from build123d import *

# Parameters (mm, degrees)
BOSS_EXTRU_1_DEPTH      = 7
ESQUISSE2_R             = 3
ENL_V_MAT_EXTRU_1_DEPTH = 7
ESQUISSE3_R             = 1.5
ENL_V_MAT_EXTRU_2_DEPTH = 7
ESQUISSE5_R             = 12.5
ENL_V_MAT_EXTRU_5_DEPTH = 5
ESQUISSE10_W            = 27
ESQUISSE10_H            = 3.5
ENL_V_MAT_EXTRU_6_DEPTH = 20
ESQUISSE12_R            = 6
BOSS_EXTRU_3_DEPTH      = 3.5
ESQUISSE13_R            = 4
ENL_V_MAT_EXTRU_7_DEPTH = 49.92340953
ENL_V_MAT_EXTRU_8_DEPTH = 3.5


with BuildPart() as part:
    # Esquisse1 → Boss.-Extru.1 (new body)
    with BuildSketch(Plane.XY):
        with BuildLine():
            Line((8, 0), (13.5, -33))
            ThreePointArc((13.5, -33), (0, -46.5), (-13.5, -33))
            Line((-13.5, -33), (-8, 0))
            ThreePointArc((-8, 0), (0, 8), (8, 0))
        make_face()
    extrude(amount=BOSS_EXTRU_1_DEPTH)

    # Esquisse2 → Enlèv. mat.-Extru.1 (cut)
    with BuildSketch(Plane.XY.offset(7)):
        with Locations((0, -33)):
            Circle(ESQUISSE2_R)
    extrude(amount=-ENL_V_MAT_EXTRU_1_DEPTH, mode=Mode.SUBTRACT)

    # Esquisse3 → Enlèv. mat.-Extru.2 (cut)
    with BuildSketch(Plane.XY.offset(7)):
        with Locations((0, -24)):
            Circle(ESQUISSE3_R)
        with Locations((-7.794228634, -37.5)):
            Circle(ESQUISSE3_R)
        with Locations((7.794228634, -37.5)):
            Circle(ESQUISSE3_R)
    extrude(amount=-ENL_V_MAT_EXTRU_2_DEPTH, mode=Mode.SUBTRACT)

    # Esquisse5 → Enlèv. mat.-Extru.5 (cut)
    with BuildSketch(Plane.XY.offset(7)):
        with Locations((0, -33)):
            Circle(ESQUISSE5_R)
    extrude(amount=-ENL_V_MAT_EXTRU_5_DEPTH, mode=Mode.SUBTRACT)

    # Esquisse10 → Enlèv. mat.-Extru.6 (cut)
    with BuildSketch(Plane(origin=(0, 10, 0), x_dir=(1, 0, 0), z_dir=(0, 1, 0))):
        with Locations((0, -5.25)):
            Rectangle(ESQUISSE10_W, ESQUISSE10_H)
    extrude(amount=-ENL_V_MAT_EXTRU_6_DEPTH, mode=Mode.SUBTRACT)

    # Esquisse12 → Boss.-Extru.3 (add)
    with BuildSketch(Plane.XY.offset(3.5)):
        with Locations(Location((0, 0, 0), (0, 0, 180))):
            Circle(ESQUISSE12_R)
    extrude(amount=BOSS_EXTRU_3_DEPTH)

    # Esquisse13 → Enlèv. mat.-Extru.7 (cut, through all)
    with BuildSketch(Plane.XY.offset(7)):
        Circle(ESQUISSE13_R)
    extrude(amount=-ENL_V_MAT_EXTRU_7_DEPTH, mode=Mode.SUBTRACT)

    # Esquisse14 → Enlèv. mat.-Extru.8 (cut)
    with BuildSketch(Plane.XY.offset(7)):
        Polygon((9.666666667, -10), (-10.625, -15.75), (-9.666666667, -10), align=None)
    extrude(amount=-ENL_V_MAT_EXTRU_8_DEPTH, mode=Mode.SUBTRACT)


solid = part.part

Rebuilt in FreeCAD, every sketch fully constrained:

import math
import FreeCAD as App
import Part
import Sketcher
from FreeCAD import Vector
Q = App.Units.Quantity

doc = App.newDocument("Part")
params = doc.addObject("Spreadsheet::Sheet", "Params")
for row, (alias, value) in enumerate([
    ("sketch1_radius", "8 mm"),
    ("sketch1_radius2", "13.5 mm"),
    ("pad1_length", "7 mm"),
    ("sketch2_diameter", "6 mm"),
    ("pocket1_length", "7 mm"),
    ("sketch3_diameter", "3 mm"),
    ("pocket2_length", "7 mm"),
    ("sketch4_diameter", "25 mm"),
    ("pocket3_length", "5 mm"),
    ("sketch5_width", "27 mm"),
    ("sketch5_height", "3.5 mm"),
    ("pocket4_length", "20 mm"),
    ("sketch6_diameter", "12 mm"),
    ("pad2_length", "3.5 mm"),
    ("sketch7_diameter", "8 mm"),
    ("pocket6_length", "3.5 mm"),
], start=1):
    params.set(f"A{row}", alias)
    params.set(f"B{row}", "=" + value)
    params.setAlias(f"B{row}", alias)

body = doc.addObject("PartDesign::Body", "Body")

# Sketch on XY plane
sketch1 = body.newObject("Sketcher::SketchObject", "Sketch")
sketch1.AttachmentSupport = (doc.getObject("XY_Plane"), [""])
sketch1.MapMode = "FlatFace"
sketch1.addGeometry(Part.LineSegment(Vector(14, -33, 0), Vector(8, 0, 0)), False)
sketch1.addGeometry(Part.ArcOfCircle(Part.Circle(Vector(0, 0, 0), Vector(0, 0, 1), 8), math.radians(0), math.radians(180)), False)
sketch1.addGeometry(Part.LineSegment(Vector(-8, 0, 0), Vector(-14, -33, 0)), False)
sketch1.addGeometry(Part.ArcOfCircle(Part.Circle(Vector(0, -33, 0), Vector(0, 0, 1), 14), math.radians(180), math.radians(360)), False)
sketch1.addConstraint(Sketcher.Constraint("Coincident", 0, 2, 1, 1))
sketch1.addConstraint(Sketcher.Constraint("Coincident", 1, 2, 2, 1))
sketch1.addConstraint(Sketcher.Constraint("Coincident", 2, 2, 3, 1))
sketch1.addConstraint(Sketcher.Constraint("Coincident", 3, 2, 0, 1))
sketch1.addConstraint(Sketcher.Constraint("Coincident", 1, 3, -1, 1))
sketch1.addConstraint(Sketcher.Constraint("Symmetric", 2, 2, 3, 2, -2))
sketch1.addConstraint(Sketcher.Constraint("PointOnObject", 0, 2, -1))
sketch1.addConstraint(Sketcher.Constraint("PointOnObject", 1, 2, -1))
sketch1.addConstraint(Sketcher.Constraint("Horizontal", 3, 3, 2, 2))
sketch1.addConstraint(Sketcher.Constraint("Radius", 1, Q("8 mm")))
sketch1.addConstraint(Sketcher.Constraint("Radius", 3, Q("13.5 mm")))
sketch1.addConstraint(Sketcher.Constraint("DistanceY", 3, 3, -1, 1, Q("33 mm")))
sketch1.setExpression("Constraints[9]", "Params.sketch1_radius")
sketch1.setExpression("Constraints[10]", "Params.sketch1_radius2")
pad1 = body.newObject("PartDesign::Pad", "Pad")
pad1.Profile = sketch1
pad1.setExpression("Length", "Params.pad1_length")

# Sketch on XY plane
sketch2 = body.newObject("Sketcher::SketchObject", "Sketch001")
sketch2.AttachmentSupport = (doc.getObject("XY_Plane"), [""])
sketch2.MapMode = "FlatFace"
sketch2.AttachmentOffset = App.Placement(Vector(0, 0, 7), App.Rotation())
sketch2.addGeometry(Part.Circle(Vector(0, -33, 0), Vector(0, 0, 1), 3), False)
sketch2.addConstraint(Sketcher.Constraint("PointOnObject", 0, 3, -2))
sketch2.addConstraint(Sketcher.Constraint("Diameter", 0, Q("6 mm")))
sketch2.addConstraint(Sketcher.Constraint("DistanceY", 0, 3, -1, 1, Q("33 mm")))
sketch2.setExpression("Constraints[1]", "Params.sketch2_diameter")
pocket1 = body.newObject("PartDesign::Pocket", "Pocket")
pocket1.Profile = sketch2
pocket1.setExpression("Length", "Params.pocket1_length")

# Sketch on XY plane
sketch3 = body.newObject("Sketcher::SketchObject", "Sketch002")
sketch3.AttachmentSupport = (doc.getObject("XY_Plane"), [""])
sketch3.MapMode = "FlatFace"
sketch3.AttachmentOffset = App.Placement(Vector(0, 0, 7), App.Rotation())
sketch3.addGeometry(Part.Circle(Vector(0, -24, 0), Vector(0, 0, 1), 1.5), False)
sketch3.addGeometry(Part.Circle(Vector(-7.8, -37.5, 0), Vector(0, 0, 1), 1.5), False)
sketch3.addGeometry(Part.Circle(Vector(7.8, -37.5, 0), Vector(0, 0, 1), 1.5), False)
sketch3.addConstraint(Sketcher.Constraint("Equal", 0, 1))
sketch3.addConstraint(Sketcher.Constraint("Equal", 1, 2))
sketch3.addConstraint(Sketcher.Constraint("Symmetric", 1, 3, 2, 3, -2))
sketch3.addConstraint(Sketcher.Constraint("PointOnObject", 0, 3, -2))
sketch3.addConstraint(Sketcher.Constraint("Diameter", 0, Q("3 mm")))
sketch3.addConstraint(Sketcher.Constraint("DistanceY", 0, 3, -1, 1, Q("24 mm")))
sketch3.addConstraint(Sketcher.Constraint("DistanceY", 1, 3, -1, 1, Q("37.5 mm")))
sketch3.addConstraint(Sketcher.Constraint("DistanceX", 1, 3, -1, 1, Q("7.794229 mm")))
sketch3.setExpression("Constraints[4]", "Params.sketch3_diameter")
pocket2 = body.newObject("PartDesign::Pocket", "Pocket001")
pocket2.Profile = sketch3
pocket2.setExpression("Length", "Params.pocket2_length")

# Sketch on XY plane
sketch4 = body.newObject("Sketcher::SketchObject", "Sketch003")
sketch4.AttachmentSupport = (doc.getObject("XY_Plane"), [""])
sketch4.MapMode = "FlatFace"
sketch4.AttachmentOffset = App.Placement(Vector(0, 0, 7), App.Rotation())
sketch4.addGeometry(Part.Circle(Vector(0, -33, 0), Vector(0, 0, 1), 12), False)
sketch4.addConstraint(Sketcher.Constraint("PointOnObject", 0, 3, -2))
sketch4.addConstraint(Sketcher.Constraint("Diameter", 0, Q("25 mm")))
sketch4.addConstraint(Sketcher.Constraint("DistanceY", 0, 3, -1, 1, Q("33 mm")))
sketch4.setExpression("Constraints[1]", "Params.sketch4_diameter")
pocket3 = body.newObject("PartDesign::Pocket", "Pocket002")
pocket3.Profile = sketch4
pocket3.setExpression("Length", "Params.pocket3_length")

# Sketch on XZ plane
sketch5 = body.newObject("Sketcher::SketchObject", "Sketch004")
sketch5.AttachmentSupport = (doc.getObject("XZ_Plane"), [""])
sketch5.MapMode = "FlatFace"
sketch5.AttachmentOffset = App.Placement(Vector(0, 0, -10), App.Rotation())
sketch5.addGeometry(Part.LineSegment(Vector(-13.5, 3.5, 0), Vector(-13.5, 7, 0)), False)
sketch5.addGeometry(Part.LineSegment(Vector(-13.5, 7, 0), Vector(13.5, 7, 0)), False)
sketch5.addGeometry(Part.LineSegment(Vector(13.5, 7, 0), Vector(13.5, 3.5, 0)), False)
sketch5.addGeometry(Part.LineSegment(Vector(13.5, 3.5, 0), Vector(-13.5, 3.5, 0)), False)
sketch5.addConstraint(Sketcher.Constraint("Coincident", 0, 2, 1, 1))
sketch5.addConstraint(Sketcher.Constraint("Coincident", 1, 2, 2, 1))
sketch5.addConstraint(Sketcher.Constraint("Coincident", 2, 2, 3, 1))
sketch5.addConstraint(Sketcher.Constraint("Coincident", 3, 2, 0, 1))
sketch5.addConstraint(Sketcher.Constraint("Vertical", 0))
sketch5.addConstraint(Sketcher.Constraint("Horizontal", 1))
sketch5.addConstraint(Sketcher.Constraint("Vertical", 2))
sketch5.addConstraint(Sketcher.Constraint("Horizontal", 3))
sketch5.addConstraint(Sketcher.Constraint("DistanceX", 1, 1, 1, 2, Q("27 mm")))
sketch5.addConstraint(Sketcher.Constraint("DistanceY", 0, 1, 0, 2, Q("3.5 mm")))
sketch5.addConstraint(Sketcher.Constraint("DistanceY", -1, 1, 0, 2, Q("7 mm")))
sketch5.addConstraint(Sketcher.Constraint("DistanceX", 0, 2, -1, 1, Q("13.5 mm")))
sketch5.setExpression("Constraints[8]", "Params.sketch5_width")
sketch5.setExpression("Constraints[9]", "Params.sketch5_height")
pocket4 = body.newObject("PartDesign::Pocket", "Pocket003")
pocket4.Profile = sketch5
pocket4.setExpression("Length", "Params.pocket4_length")
pocket4.Reversed = True

# Sketch on XY plane
sketch6 = body.newObject("Sketcher::SketchObject", "Sketch005")
sketch6.AttachmentSupport = (doc.getObject("XY_Plane"), [""])
sketch6.MapMode = "FlatFace"
sketch6.AttachmentOffset = App.Placement(Vector(0, 0, 3.5), App.Rotation())
sketch6.addGeometry(Part.Circle(Vector(0, 0, 0), Vector(0, 0, 1), 6), False)
sketch6.addConstraint(Sketcher.Constraint("Coincident", 0, 3, -1, 1))
sketch6.addConstraint(Sketcher.Constraint("Diameter", 0, Q("12 mm")))
sketch6.setExpression("Constraints[1]", "Params.sketch6_diameter")
pad2 = body.newObject("PartDesign::Pad", "Pad001")
pad2.Profile = sketch6
pad2.setExpression("Length", "Params.pad2_length")

# Sketch on XY plane
sketch7 = body.newObject("Sketcher::SketchObject", "Sketch006")
sketch7.AttachmentSupport = (doc.getObject("XY_Plane"), [""])
sketch7.MapMode = "FlatFace"
sketch7.AttachmentOffset = App.Placement(Vector(0, 0, 7), App.Rotation())
sketch7.addGeometry(Part.Circle(Vector(0, 0, 0), Vector(0, 0, 1), 4), False)
sketch7.addConstraint(Sketcher.Constraint("Coincident", 0, 3, -1, 1))
sketch7.addConstraint(Sketcher.Constraint("Diameter", 0, Q("8 mm")))
sketch7.setExpression("Constraints[1]", "Params.sketch7_diameter")
pocket5 = body.newObject("PartDesign::Pocket", "Pocket004")
pocket5.Profile = sketch7
pocket5.Type = "ThroughAll"

# Sketch on XY plane
sketch8 = body.newObject("Sketcher::SketchObject", "Sketch007")
sketch8.AttachmentSupport = (doc.getObject("XY_Plane"), [""])
sketch8.MapMode = "FlatFace"
sketch8.AttachmentOffset = App.Placement(Vector(0, 0, 7), App.Rotation())
sketch8.addGeometry(Part.LineSegment(Vector(-11, -16, 0), Vector(10, -10, 0)), False)
sketch8.addGeometry(Part.LineSegment(Vector(10, -10, 0), Vector(-10, -10, 0)), False)
sketch8.addGeometry(Part.LineSegment(Vector(-10, -10, 0), Vector(-11, -16, 0)), False)
sketch8.addConstraint(Sketcher.Constraint("Coincident", 0, 2, 1, 1))
sketch8.addConstraint(Sketcher.Constraint("Coincident", 1, 2, 2, 1))
sketch8.addConstraint(Sketcher.Constraint("Coincident", 2, 2, 0, 1))
sketch8.addConstraint(Sketcher.Constraint("Horizontal", 1))
sketch8.addConstraint(Sketcher.Constraint("DistanceY", 0, 2, -1, 1, Q("10 mm")))
sketch8.addConstraint(Sketcher.Constraint("DistanceY", 2, 2, -1, 1, Q("15.75 mm")))
sketch8.addConstraint(Sketcher.Constraint("DistanceX", 2, 2, -1, 1, Q("10.625 mm")))
sketch8.addConstraint(Sketcher.Constraint("Distance", 0, Q("21.09062 mm")))
sketch8.addConstraint(Sketcher.Constraint("DistanceX", 1, 2, 1, 1, Q("19.333333 mm")))
pocket6 = body.newObject("PartDesign::Pocket", "Pocket005")
pocket6.Profile = sketch8
pocket6.setExpression("Length", "Params.pocket6_length")

doc.recompute()
